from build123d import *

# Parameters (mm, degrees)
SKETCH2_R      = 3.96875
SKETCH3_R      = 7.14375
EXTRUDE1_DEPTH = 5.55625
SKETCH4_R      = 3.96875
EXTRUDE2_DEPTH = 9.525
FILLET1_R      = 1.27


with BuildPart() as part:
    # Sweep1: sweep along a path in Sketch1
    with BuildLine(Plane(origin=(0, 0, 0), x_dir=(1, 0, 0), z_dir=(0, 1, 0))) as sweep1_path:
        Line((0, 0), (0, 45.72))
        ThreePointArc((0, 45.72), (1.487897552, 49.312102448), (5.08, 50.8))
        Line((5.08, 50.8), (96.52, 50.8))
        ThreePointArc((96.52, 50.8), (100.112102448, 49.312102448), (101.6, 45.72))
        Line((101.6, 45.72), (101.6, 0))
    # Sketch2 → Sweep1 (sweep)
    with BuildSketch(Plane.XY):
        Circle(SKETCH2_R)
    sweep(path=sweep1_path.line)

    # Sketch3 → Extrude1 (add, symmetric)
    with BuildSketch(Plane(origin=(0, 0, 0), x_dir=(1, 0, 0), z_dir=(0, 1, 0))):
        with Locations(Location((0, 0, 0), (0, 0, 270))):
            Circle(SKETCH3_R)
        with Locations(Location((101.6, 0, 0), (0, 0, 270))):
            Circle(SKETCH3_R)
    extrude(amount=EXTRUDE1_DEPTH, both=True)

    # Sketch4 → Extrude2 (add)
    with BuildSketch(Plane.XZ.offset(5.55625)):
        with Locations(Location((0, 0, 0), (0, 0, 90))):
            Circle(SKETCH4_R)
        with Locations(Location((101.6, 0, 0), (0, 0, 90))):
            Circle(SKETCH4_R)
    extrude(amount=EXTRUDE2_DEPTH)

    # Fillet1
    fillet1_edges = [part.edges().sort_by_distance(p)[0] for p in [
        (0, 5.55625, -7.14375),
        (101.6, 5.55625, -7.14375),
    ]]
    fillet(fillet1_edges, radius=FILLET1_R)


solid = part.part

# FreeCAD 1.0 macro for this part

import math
import FreeCAD as App
import Part
import Sketcher

V = App.Vector
Q = App.Units.Quantity


def edges_at(feature, points):
    """Names of the edges that pass closest to the given points."""
    edges = feature.Shape.Edges
    near = lambda p: min(range(len(edges)), key=lambda i: edges[i].distToShape(Part.Vertex(*p))[0])
    return sorted({f"Edge{near(p) + 1}" for p in points})

doc = App.newDocument("Part")
body = doc.addObject("PartDesign::Body", "Body")

sketch1 = doc.addObject("Sketcher::SketchObject", "Sketch")
body.addObject(sketch1)
sketch1.AttachmentSupport = (doc.XY_Plane, [""])
sketch1.MapMode = "FlatFace"
sketch1.addGeometry(Part.Circle(V(0, 0, 0), V(0, 0, 1), 4), False)
sketch1.addConstraint([
    Sketcher.Constraint("Coincident", 0, 3, -1, 1),
    Sketcher.Constraint("Diameter", 0, Q("0.3125 in")),
])

sketch2 = doc.addObject("Sketcher::SketchObject", "Sketch001")
body.addObject(sketch2)
sketch2.AttachmentSupport = (doc.XZ_Plane, [""])
sketch2.MapMode = "FlatFace"
sketch2.addGeometry([
    Part.LineSegment(V(0, 0, 0), V(0, -46, 0)),
    Part.ArcOfCircle(Part.Circle(V(5, -46, 0), V(0, 0, 1), 5), math.radians(-180), math.radians(-90)),
    Part.LineSegment(V(5, -51, 0), V(97, -51, 0)),
    Part.ArcOfCircle(Part.Circle(V(97, -46, 0), V(0, 0, 1), 5), math.radians(-90), math.radians(0)),
    Part.LineSegment(V(102, -46, 0), V(102, 0, 0)),
], False)
sketch2.addConstraint([
    Sketcher.Constraint("Tangent", 0, 2, 1, 1),
    Sketcher.Constraint("Tangent", 1, 2, 2, 1),
    Sketcher.Constraint("Tangent", 2, 2, 3, 1),
    Sketcher.Constraint("Tangent", 3, 2, 4, 1),
    Sketcher.Constraint("Vertical", 0),
    Sketcher.Constraint("Horizontal", 2),
    Sketcher.Constraint("Vertical", 4),
    Sketcher.Constraint("Coincident", 0, 1, -1, 1),
    Sketcher.Constraint("Equal", 1, 3),
    Sketcher.Constraint("PointOnObject", 4, 2, -1),
    Sketcher.Constraint("Radius", 1, Q("0.2 in")),
    Sketcher.Constraint("DistanceX", 2, 1, 2, 2, Q("3.6 in")),
    Sketcher.Constraint("DistanceY", 0, 2, 0, 1, Q("1.8 in")),
])
doc.recompute()

additivepipe = doc.addObject("PartDesign::AdditivePipe", "AdditivePipe")
body.addObject(additivepipe)
additivepipe.Profile = sketch1
additivepipe.Spine = (sketch2, ["Edge1", "Edge2", "Edge3", "Edge4", "Edge5"])

sketch3 = doc.addObject("Sketcher::SketchObject", "Sketch002")
body.addObject(sketch3)
sketch3.AttachmentSupport = (doc.XZ_Plane, [""])
sketch3.MapMode = "FlatFace"
sketch3.addGeometry([
    Part.Circle(V(0, 0, 0), V(0, 0, 1), 7),
    Part.Circle(V(102, 0, 0), V(0, 0, 1), 7),
], False)
sketch3.addConstraint([
    Sketcher.Constraint("Coincident", 0, 3, -1, 1),
    Sketcher.Constraint("Equal", 0, 1),
    Sketcher.Constraint("PointOnObject", 1, 3, -1),
    Sketcher.Constraint("Diameter", 0, Q("0.5625 in")),
    Sketcher.Constraint("DistanceX", -1, 1, 1, 3, Q("4 in")),
])
pad1 = doc.addObject("PartDesign::Pad", "Pad")
body.addObject(pad1)
pad1.Profile = sketch3
pad1.Length = Q("0.4375 in")
pad1.Midplane = True

sketch4 = doc.addObject("Sketcher::SketchObject", "Sketch003")
body.addObject(sketch4)
sketch4.AttachmentSupport = (doc.XZ_Plane, [""])
sketch4.MapMode = "FlatFace"
sketch4.AttachmentOffset = App.Placement(V(0, 0, 0.21875 * 25.4), App.Rotation())
sketch4.addGeometry([
    Part.Circle(V(0, 0, 0), V(0, 0, 1), 4),
    Part.Circle(V(101.6, 0, 0), V(0, 0, 1), 4),
], False)
sketch4.addConstraint([
    Sketcher.Constraint("Coincident", 0, 3, -1, 1),
    Sketcher.Constraint("Equal", 0, 1),
    Sketcher.Constraint("PointOnObject", 1, 3, -1),
    Sketcher.Constraint("Diameter", 0, Q("0.3125 in")),
    Sketcher.Constraint("DistanceX", -1, 1, 1, 3, Q("4 in")),
])
pad2 = doc.addObject("PartDesign::Pad", "Pad001")
body.addObject(pad2)
pad2.Profile = sketch4
pad2.Length = Q("0.375 in")
doc.recompute()

fillet = doc.addObject("PartDesign::Fillet", "Fillet")
body.addObject(fillet)
fillet.Base = (pad2, edges_at(pad2, [(0, 5.556, -7.144), (101.6, 5.556, -7.144)]))
fillet.Radius = Q("0.05 in")

doc.recompute()
